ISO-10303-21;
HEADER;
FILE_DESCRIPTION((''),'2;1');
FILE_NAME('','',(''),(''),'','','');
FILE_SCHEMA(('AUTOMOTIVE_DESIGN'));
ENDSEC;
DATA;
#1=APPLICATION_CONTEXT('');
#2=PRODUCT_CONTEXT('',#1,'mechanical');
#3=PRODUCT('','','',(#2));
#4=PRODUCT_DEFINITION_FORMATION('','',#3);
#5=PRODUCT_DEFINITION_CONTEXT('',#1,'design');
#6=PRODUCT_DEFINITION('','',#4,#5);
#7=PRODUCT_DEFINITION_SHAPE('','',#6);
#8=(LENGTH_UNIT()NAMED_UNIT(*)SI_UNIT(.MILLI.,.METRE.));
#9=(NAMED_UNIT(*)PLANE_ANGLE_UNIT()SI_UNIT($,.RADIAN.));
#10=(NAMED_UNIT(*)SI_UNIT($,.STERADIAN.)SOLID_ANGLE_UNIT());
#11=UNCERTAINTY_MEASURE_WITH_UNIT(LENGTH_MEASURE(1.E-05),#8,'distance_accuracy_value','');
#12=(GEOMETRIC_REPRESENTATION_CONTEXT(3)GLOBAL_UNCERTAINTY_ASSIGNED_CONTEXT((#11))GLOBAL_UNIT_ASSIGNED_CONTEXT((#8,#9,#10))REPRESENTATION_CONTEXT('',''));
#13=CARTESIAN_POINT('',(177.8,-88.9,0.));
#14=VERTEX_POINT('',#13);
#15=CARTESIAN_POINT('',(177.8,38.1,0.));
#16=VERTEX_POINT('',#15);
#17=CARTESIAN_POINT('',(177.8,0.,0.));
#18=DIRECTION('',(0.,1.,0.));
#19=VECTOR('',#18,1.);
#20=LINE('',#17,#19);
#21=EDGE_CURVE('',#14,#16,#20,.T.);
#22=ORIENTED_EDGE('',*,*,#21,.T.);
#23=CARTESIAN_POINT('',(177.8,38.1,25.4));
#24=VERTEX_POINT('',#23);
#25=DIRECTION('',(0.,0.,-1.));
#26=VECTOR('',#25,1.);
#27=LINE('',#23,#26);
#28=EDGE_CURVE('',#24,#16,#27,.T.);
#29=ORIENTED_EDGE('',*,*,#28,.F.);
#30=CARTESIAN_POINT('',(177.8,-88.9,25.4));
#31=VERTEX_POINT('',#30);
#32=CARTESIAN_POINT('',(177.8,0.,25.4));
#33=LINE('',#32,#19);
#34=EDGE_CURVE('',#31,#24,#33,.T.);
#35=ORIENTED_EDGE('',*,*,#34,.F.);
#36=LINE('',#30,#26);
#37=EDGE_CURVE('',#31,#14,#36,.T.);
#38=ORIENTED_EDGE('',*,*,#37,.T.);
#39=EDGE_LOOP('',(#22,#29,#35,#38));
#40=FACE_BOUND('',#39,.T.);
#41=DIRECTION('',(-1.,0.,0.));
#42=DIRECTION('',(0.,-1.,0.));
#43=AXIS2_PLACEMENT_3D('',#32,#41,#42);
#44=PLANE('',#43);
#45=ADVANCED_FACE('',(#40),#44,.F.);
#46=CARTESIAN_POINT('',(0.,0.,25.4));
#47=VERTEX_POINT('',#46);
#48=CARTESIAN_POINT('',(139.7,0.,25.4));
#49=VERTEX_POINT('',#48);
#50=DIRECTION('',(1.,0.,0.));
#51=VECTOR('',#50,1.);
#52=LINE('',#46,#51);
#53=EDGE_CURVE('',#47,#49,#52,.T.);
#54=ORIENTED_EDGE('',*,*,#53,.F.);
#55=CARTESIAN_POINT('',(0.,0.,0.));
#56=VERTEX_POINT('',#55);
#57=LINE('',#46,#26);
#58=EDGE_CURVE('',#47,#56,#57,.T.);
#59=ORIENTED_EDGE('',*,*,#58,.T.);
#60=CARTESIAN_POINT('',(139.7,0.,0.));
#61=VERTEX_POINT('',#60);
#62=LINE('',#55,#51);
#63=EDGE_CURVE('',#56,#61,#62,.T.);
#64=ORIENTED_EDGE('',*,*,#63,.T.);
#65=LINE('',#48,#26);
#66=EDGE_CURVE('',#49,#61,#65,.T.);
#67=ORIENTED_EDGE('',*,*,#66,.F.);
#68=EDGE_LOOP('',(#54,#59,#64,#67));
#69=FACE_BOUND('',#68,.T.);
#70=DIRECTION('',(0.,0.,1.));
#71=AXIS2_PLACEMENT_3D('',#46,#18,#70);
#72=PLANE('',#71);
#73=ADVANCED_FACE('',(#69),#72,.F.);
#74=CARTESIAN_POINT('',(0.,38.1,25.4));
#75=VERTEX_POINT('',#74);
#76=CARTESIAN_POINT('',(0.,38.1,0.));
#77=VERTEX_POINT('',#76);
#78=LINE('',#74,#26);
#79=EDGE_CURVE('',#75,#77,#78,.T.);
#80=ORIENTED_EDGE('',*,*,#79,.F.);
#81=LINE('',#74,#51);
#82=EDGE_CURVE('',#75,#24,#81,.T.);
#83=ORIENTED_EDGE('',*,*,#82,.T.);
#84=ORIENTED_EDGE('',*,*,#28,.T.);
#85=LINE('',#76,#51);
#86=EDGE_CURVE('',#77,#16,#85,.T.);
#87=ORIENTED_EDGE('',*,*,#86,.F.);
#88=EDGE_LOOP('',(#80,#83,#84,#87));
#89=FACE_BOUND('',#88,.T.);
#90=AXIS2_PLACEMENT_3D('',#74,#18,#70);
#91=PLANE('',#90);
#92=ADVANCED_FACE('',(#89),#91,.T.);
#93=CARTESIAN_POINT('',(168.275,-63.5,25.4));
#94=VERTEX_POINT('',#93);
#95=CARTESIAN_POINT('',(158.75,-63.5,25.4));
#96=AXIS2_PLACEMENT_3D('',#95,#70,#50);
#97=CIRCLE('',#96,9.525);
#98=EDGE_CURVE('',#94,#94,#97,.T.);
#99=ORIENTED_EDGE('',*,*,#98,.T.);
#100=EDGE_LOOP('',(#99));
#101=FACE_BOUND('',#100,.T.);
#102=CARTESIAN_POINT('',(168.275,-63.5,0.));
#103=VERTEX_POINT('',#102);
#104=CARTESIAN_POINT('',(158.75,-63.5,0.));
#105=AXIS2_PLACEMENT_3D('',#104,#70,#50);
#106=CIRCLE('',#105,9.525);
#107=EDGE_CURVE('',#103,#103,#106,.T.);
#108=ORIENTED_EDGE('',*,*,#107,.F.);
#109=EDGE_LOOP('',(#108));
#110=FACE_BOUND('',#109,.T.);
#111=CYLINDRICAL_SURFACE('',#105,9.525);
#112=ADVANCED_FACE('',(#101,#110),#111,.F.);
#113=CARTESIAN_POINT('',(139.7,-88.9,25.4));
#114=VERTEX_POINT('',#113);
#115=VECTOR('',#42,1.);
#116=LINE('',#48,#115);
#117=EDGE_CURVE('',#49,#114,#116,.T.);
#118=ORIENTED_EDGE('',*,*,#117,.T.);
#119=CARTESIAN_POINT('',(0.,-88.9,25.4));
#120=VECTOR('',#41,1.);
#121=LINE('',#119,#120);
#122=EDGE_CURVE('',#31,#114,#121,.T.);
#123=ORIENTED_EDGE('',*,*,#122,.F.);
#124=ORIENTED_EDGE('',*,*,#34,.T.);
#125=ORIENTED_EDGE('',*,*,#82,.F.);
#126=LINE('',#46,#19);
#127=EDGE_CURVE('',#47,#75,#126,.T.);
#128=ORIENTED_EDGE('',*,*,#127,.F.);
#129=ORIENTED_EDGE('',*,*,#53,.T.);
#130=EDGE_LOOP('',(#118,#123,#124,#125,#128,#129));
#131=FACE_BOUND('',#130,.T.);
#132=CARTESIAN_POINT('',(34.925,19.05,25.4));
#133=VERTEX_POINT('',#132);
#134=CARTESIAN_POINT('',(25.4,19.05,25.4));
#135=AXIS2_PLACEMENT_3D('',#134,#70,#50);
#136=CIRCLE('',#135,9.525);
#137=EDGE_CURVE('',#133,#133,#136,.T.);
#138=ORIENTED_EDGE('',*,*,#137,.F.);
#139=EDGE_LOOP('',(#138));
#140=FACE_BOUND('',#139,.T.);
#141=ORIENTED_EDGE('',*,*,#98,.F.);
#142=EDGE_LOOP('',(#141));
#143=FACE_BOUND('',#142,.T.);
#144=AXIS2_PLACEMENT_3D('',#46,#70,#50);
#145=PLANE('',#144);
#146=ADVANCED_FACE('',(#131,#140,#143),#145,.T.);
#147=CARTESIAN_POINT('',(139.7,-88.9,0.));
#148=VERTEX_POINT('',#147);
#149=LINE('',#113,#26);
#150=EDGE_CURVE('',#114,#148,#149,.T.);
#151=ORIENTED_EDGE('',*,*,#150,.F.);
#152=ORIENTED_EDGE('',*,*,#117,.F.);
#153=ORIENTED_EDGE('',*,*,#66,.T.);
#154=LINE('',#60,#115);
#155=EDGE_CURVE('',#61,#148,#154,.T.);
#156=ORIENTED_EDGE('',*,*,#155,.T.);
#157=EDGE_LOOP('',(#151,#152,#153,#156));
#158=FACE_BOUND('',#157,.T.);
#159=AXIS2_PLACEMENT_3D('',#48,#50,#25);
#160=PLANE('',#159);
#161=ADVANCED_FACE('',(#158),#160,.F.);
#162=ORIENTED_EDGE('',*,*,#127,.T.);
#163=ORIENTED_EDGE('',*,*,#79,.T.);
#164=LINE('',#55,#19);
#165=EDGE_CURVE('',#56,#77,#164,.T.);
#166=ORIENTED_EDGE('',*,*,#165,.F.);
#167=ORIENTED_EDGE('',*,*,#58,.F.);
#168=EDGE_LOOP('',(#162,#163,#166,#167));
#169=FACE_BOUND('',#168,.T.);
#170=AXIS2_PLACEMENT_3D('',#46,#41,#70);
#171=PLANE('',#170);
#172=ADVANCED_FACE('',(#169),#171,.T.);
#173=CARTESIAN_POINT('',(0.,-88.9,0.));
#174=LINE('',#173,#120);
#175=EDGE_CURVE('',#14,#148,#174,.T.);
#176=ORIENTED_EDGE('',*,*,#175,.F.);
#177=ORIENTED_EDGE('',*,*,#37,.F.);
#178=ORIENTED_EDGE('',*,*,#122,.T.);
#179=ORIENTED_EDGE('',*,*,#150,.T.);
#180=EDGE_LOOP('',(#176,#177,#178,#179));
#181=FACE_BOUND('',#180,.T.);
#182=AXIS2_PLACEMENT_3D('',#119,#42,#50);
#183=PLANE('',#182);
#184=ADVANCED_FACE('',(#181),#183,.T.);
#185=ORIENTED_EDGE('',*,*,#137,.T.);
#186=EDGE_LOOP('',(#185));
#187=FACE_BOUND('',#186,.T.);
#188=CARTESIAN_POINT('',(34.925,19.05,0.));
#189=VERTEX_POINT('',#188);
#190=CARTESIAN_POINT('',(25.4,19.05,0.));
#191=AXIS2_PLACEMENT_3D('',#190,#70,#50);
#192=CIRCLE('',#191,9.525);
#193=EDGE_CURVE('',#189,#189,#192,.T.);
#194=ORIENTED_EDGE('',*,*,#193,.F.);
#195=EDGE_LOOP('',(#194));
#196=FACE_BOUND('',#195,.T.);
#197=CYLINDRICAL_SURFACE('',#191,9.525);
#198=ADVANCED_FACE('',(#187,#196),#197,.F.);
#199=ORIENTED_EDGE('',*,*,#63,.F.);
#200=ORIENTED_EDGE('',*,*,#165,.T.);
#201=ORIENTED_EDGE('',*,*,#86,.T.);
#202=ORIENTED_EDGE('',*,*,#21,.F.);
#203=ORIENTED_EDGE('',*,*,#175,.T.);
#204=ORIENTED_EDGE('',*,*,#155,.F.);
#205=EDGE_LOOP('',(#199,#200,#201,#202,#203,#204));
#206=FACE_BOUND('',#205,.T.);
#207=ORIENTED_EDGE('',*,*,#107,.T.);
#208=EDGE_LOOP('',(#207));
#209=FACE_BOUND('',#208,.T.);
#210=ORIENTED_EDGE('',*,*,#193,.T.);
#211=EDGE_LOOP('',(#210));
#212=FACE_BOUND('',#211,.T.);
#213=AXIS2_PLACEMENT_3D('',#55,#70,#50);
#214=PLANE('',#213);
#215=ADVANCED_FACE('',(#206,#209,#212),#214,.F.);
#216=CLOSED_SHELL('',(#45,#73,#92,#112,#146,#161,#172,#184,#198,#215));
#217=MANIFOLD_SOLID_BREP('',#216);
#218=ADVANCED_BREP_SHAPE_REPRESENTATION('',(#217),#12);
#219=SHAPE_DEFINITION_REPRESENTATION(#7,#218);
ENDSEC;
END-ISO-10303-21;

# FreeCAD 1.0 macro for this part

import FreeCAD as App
import Part
import Sketcher
Q = App.Units.Quantity

doc = App.newDocument("Part")
body = doc.addObject("PartDesign::Body", "Body")

# Sketch on XY plane
sketch1 = body.newObject("Sketcher::SketchObject", "Sketch")
sketch1.AttachmentSupport = (doc.getObject("XY_Plane"), [""])
sketch1.MapMode = "FlatFace"
sketch1.addGeometry([
    Part.LineSegment(App.Vector(0, 38, 0), App.Vector(0, 0, 0)),  # 0
    Part.LineSegment(App.Vector(0, 0, 0), App.Vector(140, 0, 0)),  # 1
    Part.LineSegment(App.Vector(140, 0, 0), App.Vector(140, -89, 0)),  # 2
    Part.LineSegment(App.Vector(140, -89, 0), App.Vector(178, -89, 0)),  # 3
    Part.LineSegment(App.Vector(178, -89, 0), App.Vector(178, 38, 0)),  # 4
    Part.LineSegment(App.Vector(178, 38, 0), App.Vector(0, 38, 0)),  # 5
], False)
sketch1.addConstraint([
    Sketcher.Constraint("Coincident", 0, 2, 1, 1),
    Sketcher.Constraint("Coincident", 1, 2, 2, 1),
    Sketcher.Constraint("Coincident", 2, 2, 3, 1),
    Sketcher.Constraint("Coincident", 3, 2, 4, 1),
    Sketcher.Constraint("Coincident", 4, 2, 5, 1),
    Sketcher.Constraint("Coincident", 5, 2, 0, 1),
    Sketcher.Constraint("Vertical", 0),
    Sketcher.Constraint("Horizontal", 1),
    Sketcher.Constraint("Vertical", 2),
    Sketcher.Constraint("Horizontal", 3),
    Sketcher.Constraint("Vertical", 4),
    Sketcher.Constraint("Horizontal", 5),
    Sketcher.Constraint("Coincident", 0, 2, -1, 1),
    Sketcher.Constraint("Equal", 3, 0),
    Sketcher.Constraint("DistanceX", 5, 2, 5, 1, Q("7 in")),
    Sketcher.Constraint("DistanceY", 4, 1, 4, 2, Q("5 in")),
    Sketcher.Constraint("DistanceX", 1, 1, 1, 2, Q("5.5 in")),
])
pad1 = body.newObject("PartDesign::Pad", "Pad")
pad1.Profile = sketch1
pad1.Length = Q("1 in")

# Sketch on XY plane
sketch2 = body.newObject("Sketcher::SketchObject", "Sketch001")
sketch2.AttachmentSupport = (doc.getObject("XY_Plane"), [""])
sketch2.MapMode = "FlatFace"
sketch2.AttachmentOffset = App.Placement(App.Vector(0, 0, 1 * 25.4), App.Rotation())
sketch2.addGeometry(Part.Circle(App.Vector(25, 19, 0), App.Vector(0, 0, 1), 10), False)
sketch2.addConstraint([
    Sketcher.Constraint("Diameter", 0, Q("0.75 in")),
    Sketcher.Constraint("DistanceX", -1, 1, 0, 3, Q("1 in")),
    Sketcher.Constraint("DistanceY", -1, 1, 0, 3, Q("0.75 in")),
])
pocket1 = body.newObject("PartDesign::Pocket", "Pocket")
pocket1.Profile = sketch2
pocket1.Type = "ThroughAll"

# Sketch on XY plane
sketch3 = body.newObject("Sketcher::SketchObject", "Sketch002")
sketch3.AttachmentSupport = (doc.getObject("XY_Plane"), [""])
sketch3.MapMode = "FlatFace"
sketch3.AttachmentOffset = App.Placement(App.Vector(0, 0, 1 * 25.4), App.Rotation())
sketch3.addGeometry(Part.Circle(App.Vector(159, -64, 0), App.Vector(0, 0, 1), 10), False)
sketch3.addConstraint([
    Sketcher.Constraint("Diameter", 0, Q("0.75 in")),
    Sketcher.Constraint("DistanceY", 0, 3, -1, 1, Q("2.5 in")),
    Sketcher.Constraint("DistanceX", -1, 1, 0, 3, Q("6.25 in")),
])
pocket2 = body.newObject("PartDesign::Pocket", "Pocket001")
pocket2.Profile = sketch3
pocket2.Type = "ThroughAll"

doc.recompute()
